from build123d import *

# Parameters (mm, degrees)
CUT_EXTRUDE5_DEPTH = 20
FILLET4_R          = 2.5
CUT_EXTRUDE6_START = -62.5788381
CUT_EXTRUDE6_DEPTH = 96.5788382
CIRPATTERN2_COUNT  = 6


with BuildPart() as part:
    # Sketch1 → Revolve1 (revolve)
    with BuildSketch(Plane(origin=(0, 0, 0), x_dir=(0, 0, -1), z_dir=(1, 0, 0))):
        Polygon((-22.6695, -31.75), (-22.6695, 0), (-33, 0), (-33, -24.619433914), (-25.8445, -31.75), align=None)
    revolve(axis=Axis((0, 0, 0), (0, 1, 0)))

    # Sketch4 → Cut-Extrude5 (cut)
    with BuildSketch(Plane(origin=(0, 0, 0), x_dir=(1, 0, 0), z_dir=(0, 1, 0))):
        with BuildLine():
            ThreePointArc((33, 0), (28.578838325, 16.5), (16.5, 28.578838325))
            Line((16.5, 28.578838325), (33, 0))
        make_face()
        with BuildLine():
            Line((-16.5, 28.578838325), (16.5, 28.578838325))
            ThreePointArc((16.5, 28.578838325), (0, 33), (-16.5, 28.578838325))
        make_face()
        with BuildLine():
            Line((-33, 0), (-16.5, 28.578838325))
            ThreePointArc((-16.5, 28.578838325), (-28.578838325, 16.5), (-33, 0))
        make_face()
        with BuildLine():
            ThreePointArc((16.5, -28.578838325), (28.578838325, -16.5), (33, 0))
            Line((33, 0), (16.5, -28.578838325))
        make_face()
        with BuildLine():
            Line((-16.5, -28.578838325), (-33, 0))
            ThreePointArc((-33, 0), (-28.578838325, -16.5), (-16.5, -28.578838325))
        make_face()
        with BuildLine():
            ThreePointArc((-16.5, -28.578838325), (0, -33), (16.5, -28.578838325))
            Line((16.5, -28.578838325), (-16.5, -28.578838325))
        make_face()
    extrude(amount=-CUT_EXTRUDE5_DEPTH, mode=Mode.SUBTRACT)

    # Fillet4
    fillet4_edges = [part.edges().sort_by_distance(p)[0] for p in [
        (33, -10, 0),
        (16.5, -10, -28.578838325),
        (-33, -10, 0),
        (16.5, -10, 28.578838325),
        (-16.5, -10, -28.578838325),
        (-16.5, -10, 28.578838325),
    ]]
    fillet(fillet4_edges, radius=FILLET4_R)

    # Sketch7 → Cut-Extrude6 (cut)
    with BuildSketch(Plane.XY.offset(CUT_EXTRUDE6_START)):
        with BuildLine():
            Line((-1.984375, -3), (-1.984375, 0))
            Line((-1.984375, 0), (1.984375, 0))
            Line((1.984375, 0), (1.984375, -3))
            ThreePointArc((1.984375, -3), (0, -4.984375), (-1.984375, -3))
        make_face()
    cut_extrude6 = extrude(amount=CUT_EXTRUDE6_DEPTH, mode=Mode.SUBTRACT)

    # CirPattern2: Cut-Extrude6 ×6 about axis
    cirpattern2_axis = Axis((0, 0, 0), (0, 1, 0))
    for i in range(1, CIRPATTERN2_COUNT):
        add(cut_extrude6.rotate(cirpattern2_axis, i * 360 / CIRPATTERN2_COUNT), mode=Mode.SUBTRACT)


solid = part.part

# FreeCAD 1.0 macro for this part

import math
import FreeCAD as App
import Part
import Sketcher

V = App.Vector
Q = App.Units.Quantity


def edges_at(feature, points):
    """Names of the edges that pass closest to the given points."""
    edges = feature.Shape.Edges
    near = lambda p: min(range(len(edges)), key=lambda i: edges[i].distToShape(Part.Vertex(*p))[0])
    return sorted({f"Edge{near(p) + 1}" for p in points})

doc = App.newDocument("Part")
body = doc.addObject("PartDesign::Body", "Body")

# Sketch on YZ plane
sketch1 = body.newObject("Sketcher::SketchObject", "Sketch")
sketch1.AttachmentSupport = (doc.getObject("YZ_Plane"), [""])
sketch1.MapMode = "FlatFace"
sketch1.addGeometry(Part.LineSegment(V(-31.75, 22.6695, 0), V(0, 22.6695, 0)), False)
sketch1.addGeometry(Part.LineSegment(V(0, 22.6695, 0), V(0, 33, 0)), False)
sketch1.addGeometry(Part.LineSegment(V(0, 33, 0), V(-24.619434, 33, 0)), False)
sketch1.addGeometry(Part.LineSegment(V(-24.619434, 33, 0), V(-31.75, 25.8445, 0)), False)
sketch1.addGeometry(Part.LineSegment(V(-31.75, 25.8445, 0), V(-31.75, 22.6695, 0)), False)
sketch1.addConstraint(Sketcher.Constraint("Coincident", 0, 2, 1, 1))
sketch1.addConstraint(Sketcher.Constraint("Coincident", 1, 2, 2, 1))
sketch1.addConstraint(Sketcher.Constraint("Coincident", 2, 2, 3, 1))
sketch1.addConstraint(Sketcher.Constraint("Coincident", 3, 2, 4, 1))
sketch1.addConstraint(Sketcher.Constraint("Coincident", 4, 2, 0, 1))
sketch1.addConstraint(Sketcher.Constraint("Horizontal", 0))
sketch1.addConstraint(Sketcher.Constraint("Vertical", 1))
sketch1.addConstraint(Sketcher.Constraint("Horizontal", 2))
sketch1.addConstraint(Sketcher.Constraint("Vertical", 4))
sketch1.addConstraint(Sketcher.Constraint("PointOnObject", 0, 2, -2))
sketch1.addConstraint(Sketcher.Constraint("DistanceY", -1, 1, 1, 2, Q("33 mm")))
sketch1.addConstraint(Sketcher.Constraint("Angle", 3, Q("-134.9 deg")))
sketch1.addConstraint(Sketcher.Constraint("DistanceX", 0, 1, 0, 2, Q("31.75 mm")))
sketch1.addConstraint(Sketcher.Constraint("DistanceY", 4, 2, 4, 1, Q("3.175 mm")))
sketch1.addConstraint(Sketcher.Constraint("DistanceY", 1, 1, 1, 2, Q("10.3305 mm")))
revolution = body.newObject("PartDesign::Revolution", "Revolution")
revolution.Profile = sketch1
revolution.ReferenceAxis = (sketch1, ["H_Axis"])
revolution.Angle = 360

# Sketch on XZ plane
sketch2 = body.newObject("Sketcher::SketchObject", "Sketch001")
sketch2.AttachmentSupport = (doc.getObject("XZ_Plane"), [""])
sketch2.MapMode = "FlatFace"
sketch2.addGeometry(Part.ArcOfCircle(Part.Circle(V(0, 0, 0), V(0, 0, 1), 33), math.radians(-60), math.radians(0)), False)
sketch2.addGeometry(Part.LineSegment(V(16.5, -28.578838, 0), V(33, 0, 0)), False)
sketch2.addGeometry(Part.LineSegment(V(-16.5, -28.578838, 0), V(16.5, -28.578838, 0)), False)
sketch2.addGeometry(Part.ArcOfCircle(Part.Circle(V(0, 0, 0), V(0, 0, 1), 33), math.radians(-120), math.radians(-60)), False)
sketch2.addGeometry(Part.LineSegment(V(-33, 0, 0), V(-16.5, -28.578838, 0)), False)
sketch2.addGeometry(Part.ArcOfCircle(Part.Circle(V(0, 0, 0), V(0, 0, 1), 33), math.radians(180), math.radians(240)), False)
sketch2.addGeometry(Part.ArcOfCircle(Part.Circle(V(0, 0, 0), V(0, 0, 1), 33), math.radians(0), math.radians(60)), False)
sketch2.addGeometry(Part.LineSegment(V(33, 0, 0), V(16.5, 28.578838, 0)), False)
sketch2.addGeometry(Part.LineSegment(V(-16.5, 28.578838, 0), V(-33, 0, 0)), False)
sketch2.addGeometry(Part.ArcOfCircle(Part.Circle(V(0, 0, 0), V(0, 0, 1), 33), math.radians(120), math.radians(180)), False)
sketch2.addGeometry(Part.ArcOfCircle(Part.Circle(V(0, 0, 0), V(0, 0, 1), 33), math.radians(60), math.radians(120)), False)
sketch2.addGeometry(Part.LineSegment(V(16.5, 28.578838, 0), V(-16.5, 28.578838, 0)), False)
sketch2.addConstraint(Sketcher.Constraint("Coincident", 0, 1, 1, 1))
sketch2.addConstraint(Sketcher.Constraint("Coincident", 1, 2, 0, 2))
sketch2.addConstraint(Sketcher.Constraint("Coincident", 2, 1, 3, 1))
sketch2.addConstraint(Sketcher.Constraint("Coincident", 3, 2, 2, 2))
sketch2.addConstraint(Sketcher.Constraint("Coincident", 4, 1, 5, 1))
sketch2.addConstraint(Sketcher.Constraint("Coincident", 5, 2, 4, 2))
sketch2.addConstraint(Sketcher.Constraint("Coincident", 6, 1, 7, 1))
sketch2.addConstraint(Sketcher.Constraint("Coincident", 7, 2, 6, 2))
sketch2.addConstraint(Sketcher.Constraint("Coincident", 8, 1, 9, 1))
sketch2.addConstraint(Sketcher.Constraint("Coincident", 9, 2, 8, 2))
sketch2.addConstraint(Sketcher.Constraint("Coincident", 10, 1, 11, 1))
sketch2.addConstraint(Sketcher.Constraint("Coincident", 11, 2, 10, 2))
sketch2.addConstraint(Sketcher.Constraint("Horizontal", 2))
sketch2.addConstraint(Sketcher.Constraint("Horizontal", 11))
sketch2.addConstraint(Sketcher.Constraint("Coincident", 0, 3, -1, 1))
sketch2.addConstraint(Sketcher.Constraint("Coincident", 3, 3, -1, 1))
sketch2.addConstraint(Sketcher.Constraint("Coincident", 5, 3, -1, 1))
sketch2.addConstraint(Sketcher.Constraint("Coincident", 6, 3, -1, 1))
sketch2.addConstraint(Sketcher.Constraint("Coincident", 9, 3, -1, 1))
sketch2.addConstraint(Sketcher.Constraint("Coincident", 10, 3, -1, 1))
sketch2.addConstraint(Sketcher.Constraint("Coincident", 3, 2, 0, 1))
sketch2.addConstraint(Sketcher.Constraint("Coincident", 5, 2, 2, 1))
sketch2.addConstraint(Sketcher.Constraint("Coincident", 6, 1, 1, 2))
sketch2.addConstraint(Sketcher.Constraint("Coincident", 9, 2, 4, 1))
sketch2.addConstraint(Sketcher.Constraint("Coincident", 10, 1, 7, 2))
sketch2.addConstraint(Sketcher.Constraint("PointOnObject", 1, 2, -1))
sketch2.addConstraint(Sketcher.Constraint("PointOnObject", 4, 1, -1))
sketch2.addConstraint(Sketcher.Constraint("Parallel", 4, 7))
sketch2.addConstraint(Sketcher.Constraint("Parallel", 1, 8))
sketch2.addConstraint(Sketcher.Constraint("Radius", 0, Q("33 mm")))
sketch2.addConstraint(Sketcher.Constraint("DistanceX", 2, 1, 2, 2, Q("33 mm")))
pocket1 = body.newObject("PartDesign::Pocket", "Pocket")
pocket1.Profile = sketch2
pocket1.Length = 20
pocket1.Reversed = True
doc.recompute()

fillet = body.newObject("PartDesign::Fillet", "Fillet")
fillet.Base = (pocket1, edges_at(pocket1, [
    (33, -10, 0),
    (16.5, -10, -28.579),
    (-33, -10, 0),
    (16.5, -10, 28.579),
    (-16.5, -10, -28.579),
    (-16.5, -10, 28.579),
]))
fillet.Radius = 2.5

# Sketch on XY plane
sketch3 = body.newObject("Sketcher::SketchObject", "Sketch002")
sketch3.AttachmentSupport = (doc.getObject("XY_Plane"), [""])
sketch3.MapMode = "FlatFace"
sketch3.AttachmentOffset = App.Placement(V(0, 0, -62.578838), App.Rotation())
sketch3.addGeometry(Part.LineSegment(V(-1.984375, 0, 0), V(-1.984375, -3, 0)), False)
sketch3.addGeometry(Part.ArcOfCircle(Part.Circle(V(0, -3, 0), V(0, 0, 1), 1.984375), math.radians(180), math.radians(360)), False)
sketch3.addGeometry(Part.LineSegment(V(1.984375, -3, 0), V(1.984375, 0, 0)), False)
sketch3.addGeometry(Part.LineSegment(V(1.984375, 0, 0), V(-1.984375, 0, 0)), False)
sketch3.addConstraint(Sketcher.Constraint("Tangent", 0, 2, 1, 1))
sketch3.addConstraint(Sketcher.Constraint("Tangent", 1, 2, 2, 1))
sketch3.addConstraint(Sketcher.Constraint("Coincident", 2, 2, 3, 1))
sketch3.addConstraint(Sketcher.Constraint("Coincident", 3, 2, 0, 1))
sketch3.addConstraint(Sketcher.Constraint("Vertical", 0))
sketch3.addConstraint(Sketcher.Constraint("Vertical", 2))
sketch3.addConstraint(Sketcher.Constraint("Horizontal", 3))
sketch3.addConstraint(Sketcher.Constraint("Symmetric", 2, 2, 3, 2, -1, 1))
sketch3.addConstraint(Sketcher.Constraint("DistanceY", 0, 2, 0, 1, Q("3 mm")))
sketch3.addConstraint(Sketcher.Constraint("Radius", 1, Q("1.984375 mm")))
pocket2 = body.newObject("PartDesign::Pocket", "Pocket001")
pocket2.Profile = sketch3
pocket2.Length = 96.578838
pocket2.Reversed = True
doc.recompute()

polarpattern = body.newObject("PartDesign::PolarPattern", "PolarPattern")
polarpattern.Originals = [pocket2]
polarpattern.Axis = (doc.getObject("Y_Axis"), [""])
polarpattern.Angle = 360
polarpattern.Occurrences = 6
body.Tip = polarpattern

doc.recompute()
